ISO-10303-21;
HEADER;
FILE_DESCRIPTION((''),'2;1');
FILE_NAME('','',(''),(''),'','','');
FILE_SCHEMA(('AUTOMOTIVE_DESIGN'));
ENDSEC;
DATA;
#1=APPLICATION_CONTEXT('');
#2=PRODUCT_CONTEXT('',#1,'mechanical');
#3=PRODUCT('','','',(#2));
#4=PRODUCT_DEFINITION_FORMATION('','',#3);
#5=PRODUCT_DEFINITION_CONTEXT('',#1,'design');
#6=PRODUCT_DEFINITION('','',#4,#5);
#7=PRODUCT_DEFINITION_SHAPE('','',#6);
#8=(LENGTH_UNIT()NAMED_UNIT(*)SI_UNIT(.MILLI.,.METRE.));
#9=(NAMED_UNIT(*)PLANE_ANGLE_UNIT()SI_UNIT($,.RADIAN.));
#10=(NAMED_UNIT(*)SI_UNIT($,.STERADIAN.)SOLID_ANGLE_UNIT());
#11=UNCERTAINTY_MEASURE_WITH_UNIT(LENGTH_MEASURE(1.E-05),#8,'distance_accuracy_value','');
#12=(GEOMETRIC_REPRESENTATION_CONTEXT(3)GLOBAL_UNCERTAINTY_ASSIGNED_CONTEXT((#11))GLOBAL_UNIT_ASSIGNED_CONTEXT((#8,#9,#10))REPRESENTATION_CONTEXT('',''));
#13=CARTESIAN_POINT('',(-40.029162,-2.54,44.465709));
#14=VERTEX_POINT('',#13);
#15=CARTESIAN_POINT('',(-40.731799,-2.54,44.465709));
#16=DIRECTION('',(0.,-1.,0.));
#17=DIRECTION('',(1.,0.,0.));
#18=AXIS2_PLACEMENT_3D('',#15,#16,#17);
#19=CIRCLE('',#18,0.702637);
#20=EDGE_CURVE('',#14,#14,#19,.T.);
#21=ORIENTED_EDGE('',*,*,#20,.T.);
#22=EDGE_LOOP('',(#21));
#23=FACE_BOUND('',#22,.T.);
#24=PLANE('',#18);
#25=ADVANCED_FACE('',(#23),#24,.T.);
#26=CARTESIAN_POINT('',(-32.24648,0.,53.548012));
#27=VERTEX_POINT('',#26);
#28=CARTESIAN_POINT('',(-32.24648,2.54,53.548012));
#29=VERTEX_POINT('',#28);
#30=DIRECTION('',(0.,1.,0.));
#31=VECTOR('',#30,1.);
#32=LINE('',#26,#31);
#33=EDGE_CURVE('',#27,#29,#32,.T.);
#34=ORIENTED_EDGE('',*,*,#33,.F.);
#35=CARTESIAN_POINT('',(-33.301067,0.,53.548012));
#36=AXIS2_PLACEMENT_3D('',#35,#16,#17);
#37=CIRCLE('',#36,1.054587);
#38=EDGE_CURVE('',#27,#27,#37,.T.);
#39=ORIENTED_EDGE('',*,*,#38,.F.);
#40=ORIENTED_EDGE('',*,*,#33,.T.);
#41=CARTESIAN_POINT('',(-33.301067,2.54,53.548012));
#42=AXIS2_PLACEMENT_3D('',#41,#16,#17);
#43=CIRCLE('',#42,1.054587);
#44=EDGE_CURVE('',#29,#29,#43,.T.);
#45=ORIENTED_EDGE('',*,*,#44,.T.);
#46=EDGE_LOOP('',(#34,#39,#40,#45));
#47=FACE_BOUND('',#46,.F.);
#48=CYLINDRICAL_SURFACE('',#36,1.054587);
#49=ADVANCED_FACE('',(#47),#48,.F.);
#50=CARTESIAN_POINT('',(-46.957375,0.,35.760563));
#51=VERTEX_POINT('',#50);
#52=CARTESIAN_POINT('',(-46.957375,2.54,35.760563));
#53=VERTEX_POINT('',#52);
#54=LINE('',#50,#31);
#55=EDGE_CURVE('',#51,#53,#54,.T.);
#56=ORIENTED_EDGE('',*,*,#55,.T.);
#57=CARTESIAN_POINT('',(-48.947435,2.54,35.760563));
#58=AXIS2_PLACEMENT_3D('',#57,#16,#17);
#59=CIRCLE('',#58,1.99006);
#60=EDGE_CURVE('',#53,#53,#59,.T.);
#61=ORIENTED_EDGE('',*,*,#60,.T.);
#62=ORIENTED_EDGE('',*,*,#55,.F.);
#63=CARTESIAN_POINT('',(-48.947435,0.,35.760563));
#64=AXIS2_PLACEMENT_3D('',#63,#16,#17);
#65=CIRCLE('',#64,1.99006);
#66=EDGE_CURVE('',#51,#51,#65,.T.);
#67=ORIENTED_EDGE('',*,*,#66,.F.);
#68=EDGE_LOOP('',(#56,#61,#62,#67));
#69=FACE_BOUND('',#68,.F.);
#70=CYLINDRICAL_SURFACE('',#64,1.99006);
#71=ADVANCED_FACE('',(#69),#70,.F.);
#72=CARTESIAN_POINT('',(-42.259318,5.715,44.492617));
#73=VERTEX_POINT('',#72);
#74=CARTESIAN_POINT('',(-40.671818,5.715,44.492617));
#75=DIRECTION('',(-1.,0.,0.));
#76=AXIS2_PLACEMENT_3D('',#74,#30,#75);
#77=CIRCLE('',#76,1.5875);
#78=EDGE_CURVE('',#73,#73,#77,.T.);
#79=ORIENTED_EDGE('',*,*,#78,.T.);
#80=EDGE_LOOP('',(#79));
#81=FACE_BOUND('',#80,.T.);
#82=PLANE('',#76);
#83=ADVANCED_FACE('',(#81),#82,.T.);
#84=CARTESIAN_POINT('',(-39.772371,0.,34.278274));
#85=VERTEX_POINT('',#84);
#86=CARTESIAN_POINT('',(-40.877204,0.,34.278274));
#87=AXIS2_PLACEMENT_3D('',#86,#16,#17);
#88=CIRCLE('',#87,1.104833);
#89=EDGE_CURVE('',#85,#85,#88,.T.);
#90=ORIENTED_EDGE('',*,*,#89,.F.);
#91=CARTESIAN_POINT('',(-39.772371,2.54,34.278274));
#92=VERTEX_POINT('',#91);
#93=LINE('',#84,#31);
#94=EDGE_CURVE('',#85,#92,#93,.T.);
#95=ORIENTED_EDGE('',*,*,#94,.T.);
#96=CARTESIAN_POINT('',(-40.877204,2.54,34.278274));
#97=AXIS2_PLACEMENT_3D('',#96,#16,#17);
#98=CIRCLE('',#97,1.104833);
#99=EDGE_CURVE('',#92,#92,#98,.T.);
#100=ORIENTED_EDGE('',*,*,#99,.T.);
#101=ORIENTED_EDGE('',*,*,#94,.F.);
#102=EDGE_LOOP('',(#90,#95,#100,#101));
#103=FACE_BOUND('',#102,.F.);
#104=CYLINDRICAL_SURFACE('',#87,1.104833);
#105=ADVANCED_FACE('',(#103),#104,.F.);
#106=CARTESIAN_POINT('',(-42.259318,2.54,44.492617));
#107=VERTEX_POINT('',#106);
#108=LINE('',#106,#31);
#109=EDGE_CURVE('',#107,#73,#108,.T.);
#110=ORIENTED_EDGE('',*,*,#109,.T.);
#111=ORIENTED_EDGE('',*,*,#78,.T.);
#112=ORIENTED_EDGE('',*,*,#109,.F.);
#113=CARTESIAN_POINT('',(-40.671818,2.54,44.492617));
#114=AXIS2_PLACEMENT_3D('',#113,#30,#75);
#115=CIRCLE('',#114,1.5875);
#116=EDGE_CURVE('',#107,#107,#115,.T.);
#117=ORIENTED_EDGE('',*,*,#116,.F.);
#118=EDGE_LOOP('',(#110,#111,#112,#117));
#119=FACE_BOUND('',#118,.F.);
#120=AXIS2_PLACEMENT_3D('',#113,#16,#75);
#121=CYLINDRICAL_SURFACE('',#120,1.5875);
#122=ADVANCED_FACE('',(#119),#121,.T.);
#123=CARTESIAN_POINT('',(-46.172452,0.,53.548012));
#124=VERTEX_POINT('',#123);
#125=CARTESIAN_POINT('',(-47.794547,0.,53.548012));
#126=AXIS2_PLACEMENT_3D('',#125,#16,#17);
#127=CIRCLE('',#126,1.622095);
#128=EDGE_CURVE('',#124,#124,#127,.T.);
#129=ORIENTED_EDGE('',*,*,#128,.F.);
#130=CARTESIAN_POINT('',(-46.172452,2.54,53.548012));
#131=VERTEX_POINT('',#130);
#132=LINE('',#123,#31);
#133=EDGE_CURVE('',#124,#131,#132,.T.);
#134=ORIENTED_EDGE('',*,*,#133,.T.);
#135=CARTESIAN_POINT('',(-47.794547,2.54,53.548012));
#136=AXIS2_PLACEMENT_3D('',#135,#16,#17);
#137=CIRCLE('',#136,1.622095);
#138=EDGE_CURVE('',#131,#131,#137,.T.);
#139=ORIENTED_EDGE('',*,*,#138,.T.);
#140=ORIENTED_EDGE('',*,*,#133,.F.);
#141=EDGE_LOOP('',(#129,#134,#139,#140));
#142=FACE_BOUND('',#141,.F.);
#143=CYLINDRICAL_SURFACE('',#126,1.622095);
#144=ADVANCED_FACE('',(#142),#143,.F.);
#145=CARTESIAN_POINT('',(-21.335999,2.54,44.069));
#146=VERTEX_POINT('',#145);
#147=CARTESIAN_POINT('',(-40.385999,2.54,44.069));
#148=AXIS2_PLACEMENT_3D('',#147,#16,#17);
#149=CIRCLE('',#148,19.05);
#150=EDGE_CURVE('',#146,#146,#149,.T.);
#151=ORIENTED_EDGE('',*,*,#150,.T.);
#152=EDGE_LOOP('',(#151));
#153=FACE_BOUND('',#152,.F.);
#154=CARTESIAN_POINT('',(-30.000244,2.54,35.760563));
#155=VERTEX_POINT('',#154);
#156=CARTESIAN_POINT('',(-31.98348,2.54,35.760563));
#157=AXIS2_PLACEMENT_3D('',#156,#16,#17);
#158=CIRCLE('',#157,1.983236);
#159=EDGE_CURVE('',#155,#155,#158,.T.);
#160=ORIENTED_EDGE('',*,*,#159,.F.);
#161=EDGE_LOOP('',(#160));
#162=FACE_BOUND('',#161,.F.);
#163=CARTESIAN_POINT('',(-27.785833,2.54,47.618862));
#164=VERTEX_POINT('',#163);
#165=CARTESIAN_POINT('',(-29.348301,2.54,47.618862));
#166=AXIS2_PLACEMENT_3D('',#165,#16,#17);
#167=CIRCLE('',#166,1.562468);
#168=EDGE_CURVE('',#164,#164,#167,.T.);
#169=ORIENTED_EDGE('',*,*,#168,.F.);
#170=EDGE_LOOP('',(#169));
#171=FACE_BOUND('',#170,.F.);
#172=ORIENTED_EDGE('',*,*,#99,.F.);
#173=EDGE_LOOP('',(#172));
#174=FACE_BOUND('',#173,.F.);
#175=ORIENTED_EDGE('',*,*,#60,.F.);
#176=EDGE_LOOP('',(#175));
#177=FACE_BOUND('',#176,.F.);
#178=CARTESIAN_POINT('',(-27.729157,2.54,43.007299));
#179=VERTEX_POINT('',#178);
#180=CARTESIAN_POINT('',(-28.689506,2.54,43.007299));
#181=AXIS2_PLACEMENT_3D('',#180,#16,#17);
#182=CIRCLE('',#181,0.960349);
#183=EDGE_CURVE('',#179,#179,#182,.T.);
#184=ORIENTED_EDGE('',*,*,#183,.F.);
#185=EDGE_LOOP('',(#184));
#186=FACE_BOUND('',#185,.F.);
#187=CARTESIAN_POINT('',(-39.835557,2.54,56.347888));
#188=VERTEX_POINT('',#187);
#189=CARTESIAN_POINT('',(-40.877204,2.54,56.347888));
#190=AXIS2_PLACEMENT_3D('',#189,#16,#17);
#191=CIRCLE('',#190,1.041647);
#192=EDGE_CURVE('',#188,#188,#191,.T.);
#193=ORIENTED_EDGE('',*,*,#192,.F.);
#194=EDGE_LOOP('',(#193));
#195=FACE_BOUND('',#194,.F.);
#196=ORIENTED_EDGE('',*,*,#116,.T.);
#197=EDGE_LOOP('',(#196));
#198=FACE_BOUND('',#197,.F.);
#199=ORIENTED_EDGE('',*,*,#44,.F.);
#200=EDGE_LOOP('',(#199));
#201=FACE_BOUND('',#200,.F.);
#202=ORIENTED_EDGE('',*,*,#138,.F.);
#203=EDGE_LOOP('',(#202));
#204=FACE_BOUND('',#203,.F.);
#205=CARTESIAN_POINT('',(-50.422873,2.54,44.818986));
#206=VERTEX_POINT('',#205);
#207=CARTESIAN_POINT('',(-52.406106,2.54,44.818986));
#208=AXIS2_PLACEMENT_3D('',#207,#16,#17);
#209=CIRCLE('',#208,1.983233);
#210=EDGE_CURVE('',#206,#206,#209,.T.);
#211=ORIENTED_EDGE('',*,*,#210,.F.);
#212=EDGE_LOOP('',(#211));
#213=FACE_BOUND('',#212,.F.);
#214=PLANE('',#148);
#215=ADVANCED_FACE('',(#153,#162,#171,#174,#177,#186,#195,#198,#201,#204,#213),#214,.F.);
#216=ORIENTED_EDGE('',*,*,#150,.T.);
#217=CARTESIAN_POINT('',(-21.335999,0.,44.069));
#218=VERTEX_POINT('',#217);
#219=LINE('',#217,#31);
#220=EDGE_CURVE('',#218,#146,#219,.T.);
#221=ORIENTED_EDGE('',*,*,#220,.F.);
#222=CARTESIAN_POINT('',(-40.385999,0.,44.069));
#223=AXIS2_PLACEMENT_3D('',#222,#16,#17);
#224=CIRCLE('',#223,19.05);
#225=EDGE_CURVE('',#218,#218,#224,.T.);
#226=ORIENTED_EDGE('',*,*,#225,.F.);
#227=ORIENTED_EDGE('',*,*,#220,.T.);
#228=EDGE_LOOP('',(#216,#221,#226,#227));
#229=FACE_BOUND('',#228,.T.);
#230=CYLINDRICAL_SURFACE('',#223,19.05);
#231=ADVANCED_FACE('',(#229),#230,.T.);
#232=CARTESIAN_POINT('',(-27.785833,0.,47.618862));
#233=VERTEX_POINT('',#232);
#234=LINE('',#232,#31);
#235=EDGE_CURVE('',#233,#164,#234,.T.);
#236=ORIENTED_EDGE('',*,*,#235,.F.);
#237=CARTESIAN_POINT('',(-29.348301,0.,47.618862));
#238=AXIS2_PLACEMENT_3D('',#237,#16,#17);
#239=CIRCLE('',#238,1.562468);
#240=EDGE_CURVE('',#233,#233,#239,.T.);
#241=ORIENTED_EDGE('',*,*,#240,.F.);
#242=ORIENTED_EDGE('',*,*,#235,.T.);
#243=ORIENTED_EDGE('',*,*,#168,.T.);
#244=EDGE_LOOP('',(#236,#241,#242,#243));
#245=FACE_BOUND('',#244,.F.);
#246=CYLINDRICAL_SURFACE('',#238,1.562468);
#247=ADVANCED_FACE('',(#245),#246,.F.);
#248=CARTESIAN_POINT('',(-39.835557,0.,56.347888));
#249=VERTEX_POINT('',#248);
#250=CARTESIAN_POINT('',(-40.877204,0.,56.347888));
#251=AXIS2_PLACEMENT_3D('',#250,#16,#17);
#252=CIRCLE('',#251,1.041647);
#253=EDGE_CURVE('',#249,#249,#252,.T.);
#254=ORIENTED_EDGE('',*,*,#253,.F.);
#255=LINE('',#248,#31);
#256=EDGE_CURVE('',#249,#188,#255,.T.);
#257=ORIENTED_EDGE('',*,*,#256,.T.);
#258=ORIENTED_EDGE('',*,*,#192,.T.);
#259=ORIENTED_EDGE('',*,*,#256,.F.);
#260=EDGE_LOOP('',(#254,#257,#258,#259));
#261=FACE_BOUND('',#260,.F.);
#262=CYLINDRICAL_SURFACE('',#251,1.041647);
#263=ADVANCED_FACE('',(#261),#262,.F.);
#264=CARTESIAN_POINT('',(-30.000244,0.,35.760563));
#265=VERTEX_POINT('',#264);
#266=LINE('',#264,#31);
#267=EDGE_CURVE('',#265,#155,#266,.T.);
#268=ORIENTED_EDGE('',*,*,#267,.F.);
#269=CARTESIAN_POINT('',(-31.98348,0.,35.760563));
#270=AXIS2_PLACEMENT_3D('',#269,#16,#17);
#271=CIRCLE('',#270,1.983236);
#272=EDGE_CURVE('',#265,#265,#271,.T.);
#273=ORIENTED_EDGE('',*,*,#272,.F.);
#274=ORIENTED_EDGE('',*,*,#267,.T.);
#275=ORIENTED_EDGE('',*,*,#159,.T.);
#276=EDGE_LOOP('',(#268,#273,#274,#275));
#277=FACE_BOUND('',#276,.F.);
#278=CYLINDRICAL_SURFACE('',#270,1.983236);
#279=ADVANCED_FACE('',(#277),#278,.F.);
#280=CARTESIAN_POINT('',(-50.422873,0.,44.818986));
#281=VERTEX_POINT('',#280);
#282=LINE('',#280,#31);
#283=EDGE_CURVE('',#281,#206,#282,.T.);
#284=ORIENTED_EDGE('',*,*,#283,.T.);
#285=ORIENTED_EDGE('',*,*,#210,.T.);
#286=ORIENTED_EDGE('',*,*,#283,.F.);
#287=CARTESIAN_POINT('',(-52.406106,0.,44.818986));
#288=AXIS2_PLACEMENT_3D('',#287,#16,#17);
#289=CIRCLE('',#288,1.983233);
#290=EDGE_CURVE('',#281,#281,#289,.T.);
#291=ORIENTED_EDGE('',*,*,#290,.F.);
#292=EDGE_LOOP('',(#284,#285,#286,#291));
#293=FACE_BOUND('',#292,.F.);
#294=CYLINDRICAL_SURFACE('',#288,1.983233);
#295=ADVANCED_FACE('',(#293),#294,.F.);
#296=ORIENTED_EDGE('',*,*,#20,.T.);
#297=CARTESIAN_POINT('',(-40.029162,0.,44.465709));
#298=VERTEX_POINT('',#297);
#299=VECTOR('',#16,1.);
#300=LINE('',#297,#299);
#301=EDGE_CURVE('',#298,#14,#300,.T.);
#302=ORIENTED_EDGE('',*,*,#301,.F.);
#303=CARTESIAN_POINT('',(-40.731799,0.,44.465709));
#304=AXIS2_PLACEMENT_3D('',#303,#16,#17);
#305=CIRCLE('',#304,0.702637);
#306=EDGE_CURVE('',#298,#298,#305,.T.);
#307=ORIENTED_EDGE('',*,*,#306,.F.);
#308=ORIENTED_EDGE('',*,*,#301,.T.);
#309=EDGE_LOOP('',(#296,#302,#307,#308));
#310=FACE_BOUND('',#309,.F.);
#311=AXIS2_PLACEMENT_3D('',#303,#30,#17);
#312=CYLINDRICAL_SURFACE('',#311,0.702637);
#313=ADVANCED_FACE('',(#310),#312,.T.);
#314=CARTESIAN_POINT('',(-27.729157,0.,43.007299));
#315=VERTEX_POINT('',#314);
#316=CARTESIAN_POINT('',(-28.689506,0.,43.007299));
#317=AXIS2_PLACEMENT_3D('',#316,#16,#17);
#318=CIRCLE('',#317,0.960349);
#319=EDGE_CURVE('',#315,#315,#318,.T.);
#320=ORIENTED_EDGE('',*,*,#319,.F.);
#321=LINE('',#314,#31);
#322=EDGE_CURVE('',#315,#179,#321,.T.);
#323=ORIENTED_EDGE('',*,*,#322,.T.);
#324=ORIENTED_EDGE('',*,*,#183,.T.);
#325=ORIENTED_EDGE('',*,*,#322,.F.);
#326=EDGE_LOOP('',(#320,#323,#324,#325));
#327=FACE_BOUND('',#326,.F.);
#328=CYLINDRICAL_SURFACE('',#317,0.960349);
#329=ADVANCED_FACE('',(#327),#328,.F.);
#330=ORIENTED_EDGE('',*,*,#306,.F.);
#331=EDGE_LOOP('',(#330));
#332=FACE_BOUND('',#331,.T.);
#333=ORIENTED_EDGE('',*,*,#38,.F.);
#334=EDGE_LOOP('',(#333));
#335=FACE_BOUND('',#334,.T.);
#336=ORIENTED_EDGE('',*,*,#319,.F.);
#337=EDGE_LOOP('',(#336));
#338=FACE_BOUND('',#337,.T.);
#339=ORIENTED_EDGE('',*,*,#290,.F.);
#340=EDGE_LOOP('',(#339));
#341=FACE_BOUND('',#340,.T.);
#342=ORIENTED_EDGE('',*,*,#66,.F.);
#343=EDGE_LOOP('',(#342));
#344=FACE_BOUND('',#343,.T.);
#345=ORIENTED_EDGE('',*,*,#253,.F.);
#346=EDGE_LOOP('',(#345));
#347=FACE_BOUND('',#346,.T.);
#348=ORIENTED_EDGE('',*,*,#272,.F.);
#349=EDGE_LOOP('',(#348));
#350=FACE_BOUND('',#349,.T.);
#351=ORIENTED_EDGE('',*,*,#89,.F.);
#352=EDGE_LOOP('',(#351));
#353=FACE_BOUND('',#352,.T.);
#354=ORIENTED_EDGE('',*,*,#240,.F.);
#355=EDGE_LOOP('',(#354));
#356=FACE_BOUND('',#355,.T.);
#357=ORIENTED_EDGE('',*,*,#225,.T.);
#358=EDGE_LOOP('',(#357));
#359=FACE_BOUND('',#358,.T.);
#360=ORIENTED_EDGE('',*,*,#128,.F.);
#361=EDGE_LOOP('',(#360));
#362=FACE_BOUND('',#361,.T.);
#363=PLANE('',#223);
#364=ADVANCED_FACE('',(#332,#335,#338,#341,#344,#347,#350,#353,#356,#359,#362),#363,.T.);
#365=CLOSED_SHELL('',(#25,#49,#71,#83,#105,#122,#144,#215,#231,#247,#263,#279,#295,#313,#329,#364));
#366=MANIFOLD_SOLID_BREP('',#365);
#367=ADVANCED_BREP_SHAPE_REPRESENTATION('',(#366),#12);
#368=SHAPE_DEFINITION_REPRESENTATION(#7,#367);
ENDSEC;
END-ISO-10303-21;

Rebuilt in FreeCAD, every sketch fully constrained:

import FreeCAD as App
import Part
import Sketcher
from FreeCAD import Vector
Q = App.Units.Quantity

doc = App.newDocument("Part")
body = doc.addObject("PartDesign::Body", "Body")

sketch1 = body.newObject("Sketcher::SketchObject", "Sketch")
sketch1.AttachmentSupport = (doc.getObject("XZ_Plane"), [""])
sketch1.MapMode = "FlatFace"
sketch1.addGeometry(Part.Circle(Vector(-40, 44, 0), Vector(0, 0, 1), 19), False)
sketch1.addConstraint([
    Sketcher.Constraint("Diameter", 0, Q("1.5 in")),
    Sketcher.Constraint("DistanceX", 0, 3, -1, 1, Q("1.59 in")),
    Sketcher.Constraint("DistanceY", -1, 1, 0, 3, Q("1.735 in")),
])
pad1 = body.newObject("PartDesign::Pad", "Pad")
pad1.Profile = sketch1
pad1.Length = Q("0.1 in")
pad1.Reversed = True

sketch2 = body.newObject("Sketcher::SketchObject", "Sketch001")
sketch2.AttachmentSupport = (doc.getObject("XZ_Plane"), [""])
sketch2.MapMode = "FlatFace"
sketch2.addGeometry([
    Part.Circle(Vector(-40.9, 56.3, 0), Vector(0, 0, 1), 1),
    Part.Circle(Vector(-33.3, 53.5, 0), Vector(0, 0, 1), 1.1),
    Part.Circle(Vector(-29.3, 47.6, 0), Vector(0, 0, 1), 1.6),
    Part.Circle(Vector(-28.7, 43, 0), Vector(0, 0, 1), 1),
    Part.Circle(Vector(-32, 35.8, 0), Vector(0, 0, 1), 2),
    Part.Circle(Vector(-40.9, 34.3, 0), Vector(0, 0, 1), 1.1),
    Part.Circle(Vector(-48.9, 35.8, 0), Vector(0, 0, 1), 2),
    Part.Circle(Vector(-52.4, 44.8, 0), Vector(0, 0, 1), 2),
    Part.Circle(Vector(-47.8, 53.5, 0), Vector(0, 0, 1), 1.6),
], False)
sketch2.addConstraint([
    Sketcher.Constraint("Horizontal", 4, 3, 6, 3),
    Sketcher.Constraint("Horizontal", 1, 3, 8, 3),
    Sketcher.Constraint("Vertical", 0, 3, 5, 3),
    Sketcher.Constraint("Diameter", 4, Q("3.966472 mm")),
    Sketcher.Constraint("Diameter", 6, Q("3.98012 mm")),
    Sketcher.Constraint("Diameter", 8, Q("3.24419 mm")),
    Sketcher.Constraint("Diameter", 0, Q("2.083294 mm")),
    Sketcher.Constraint("Diameter", 1, Q("2.109174 mm")),
    Sketcher.Constraint("Diameter", 2, Q("3.124936 mm")),
    Sketcher.Constraint("Diameter", 3, Q("1.920698 mm")),
    Sketcher.Constraint("Diameter", 5, Q("2.209666 mm")),
    Sketcher.Constraint("Diameter", 7, Q("3.966466 mm")),
    Sketcher.Constraint("DistanceX", 2, 3, -1, 1, Q("29.348301 mm")),
    Sketcher.Constraint("DistanceY", -1, 1, 3, 3, Q("43.007299 mm")),
    Sketcher.Constraint("DistanceY", 4, 3, 2, 3, Q("11.858299 mm")),
    Sketcher.Constraint("DistanceY", 7, 3, 0, 3, Q("11.528902 mm")),
    Sketcher.Constraint("DistanceX", 4, 3, -1, 1, Q("31.98348 mm")),
    Sketcher.Constraint("DistanceY", 2, 3, 1, 3, Q("5.92915 mm")),
    Sketcher.Constraint("DistanceX", 1, 3, 3, 3, Q("4.611561 mm")),
    Sketcher.Constraint("DistanceY", 3, 3, 0, 3, Q("13.340589 mm")),
    Sketcher.Constraint("DistanceY", 5, 3, 4, 3, Q("1.482289 mm")),
    Sketcher.Constraint("DistanceX", 6, 3, 5, 3, Q("8.070231 mm")),
    Sketcher.Constraint("DistanceX", 6, 3, 3, 3, Q("20.257929 mm")),
    Sketcher.Constraint("DistanceX", 7, 3, 6, 3, Q("3.458671 mm")),
    Sketcher.Constraint("DistanceY", 5, 3, 7, 3, Q("10.540712 mm")),
    Sketcher.Constraint("DistanceX", 7, 3, 8, 3, Q("4.611559 mm")),
    Sketcher.Constraint("DistanceX", 0, 3, -1, 1, Q("40.877204 mm")),
])
pocket1 = body.newObject("PartDesign::Pocket", "Pocket")
pocket1.Profile = sketch2
pocket1.Length = Q("1 in")

sketch3 = body.newObject("Sketcher::SketchObject", "Sketch002")
sketch3.AttachmentSupport = (doc.getObject("XZ_Plane"), [""])
sketch3.MapMode = "FlatFace"
sketch3.addGeometry(Part.Circle(Vector(-40.7, 44.5, 0), Vector(0, 0, 1), 0.7), False)
sketch3.addConstraint([
    Sketcher.Constraint("Diameter", 0, Q("1.405274 mm")),
    Sketcher.Constraint("DistanceX", 0, 3, -1, 1, Q("40.731799 mm")),
    Sketcher.Constraint("DistanceY", -1, 1, 0, 3, Q("44.465709 mm")),
])
pad2 = body.newObject("PartDesign::Pad", "Pad001")
pad2.Profile = sketch3
pad2.Length = Q("0.1 in")

sketch4 = body.newObject("Sketcher::SketchObject", "Sketch003")
sketch4.AttachmentSupport = (doc.getObject("XZ_Plane"), [""])
sketch4.MapMode = "FlatFace"
sketch4.AttachmentOffset = App.Placement(Vector(0, 0, -0.1 * 25.4), App.Rotation())
sketch4.addGeometry(Part.Circle(Vector(-40.7, 44.5, 0), Vector(0, 0, 1), 1.6), False)
sketch4.addConstraint([
    Sketcher.Constraint("Diameter", 0, Q("0.125 in")),
    Sketcher.Constraint("DistanceX", 0, 3, -1, 1, Q("40.671818 mm")),
    Sketcher.Constraint("DistanceY", -1, 1, 0, 3, Q("44.492617 mm")),
])
pad3 = body.newObject("PartDesign::Pad", "Pad002")
pad3.Profile = sketch4
pad3.Length = Q("0.125 in")
pad3.Reversed = True

doc.recompute()
